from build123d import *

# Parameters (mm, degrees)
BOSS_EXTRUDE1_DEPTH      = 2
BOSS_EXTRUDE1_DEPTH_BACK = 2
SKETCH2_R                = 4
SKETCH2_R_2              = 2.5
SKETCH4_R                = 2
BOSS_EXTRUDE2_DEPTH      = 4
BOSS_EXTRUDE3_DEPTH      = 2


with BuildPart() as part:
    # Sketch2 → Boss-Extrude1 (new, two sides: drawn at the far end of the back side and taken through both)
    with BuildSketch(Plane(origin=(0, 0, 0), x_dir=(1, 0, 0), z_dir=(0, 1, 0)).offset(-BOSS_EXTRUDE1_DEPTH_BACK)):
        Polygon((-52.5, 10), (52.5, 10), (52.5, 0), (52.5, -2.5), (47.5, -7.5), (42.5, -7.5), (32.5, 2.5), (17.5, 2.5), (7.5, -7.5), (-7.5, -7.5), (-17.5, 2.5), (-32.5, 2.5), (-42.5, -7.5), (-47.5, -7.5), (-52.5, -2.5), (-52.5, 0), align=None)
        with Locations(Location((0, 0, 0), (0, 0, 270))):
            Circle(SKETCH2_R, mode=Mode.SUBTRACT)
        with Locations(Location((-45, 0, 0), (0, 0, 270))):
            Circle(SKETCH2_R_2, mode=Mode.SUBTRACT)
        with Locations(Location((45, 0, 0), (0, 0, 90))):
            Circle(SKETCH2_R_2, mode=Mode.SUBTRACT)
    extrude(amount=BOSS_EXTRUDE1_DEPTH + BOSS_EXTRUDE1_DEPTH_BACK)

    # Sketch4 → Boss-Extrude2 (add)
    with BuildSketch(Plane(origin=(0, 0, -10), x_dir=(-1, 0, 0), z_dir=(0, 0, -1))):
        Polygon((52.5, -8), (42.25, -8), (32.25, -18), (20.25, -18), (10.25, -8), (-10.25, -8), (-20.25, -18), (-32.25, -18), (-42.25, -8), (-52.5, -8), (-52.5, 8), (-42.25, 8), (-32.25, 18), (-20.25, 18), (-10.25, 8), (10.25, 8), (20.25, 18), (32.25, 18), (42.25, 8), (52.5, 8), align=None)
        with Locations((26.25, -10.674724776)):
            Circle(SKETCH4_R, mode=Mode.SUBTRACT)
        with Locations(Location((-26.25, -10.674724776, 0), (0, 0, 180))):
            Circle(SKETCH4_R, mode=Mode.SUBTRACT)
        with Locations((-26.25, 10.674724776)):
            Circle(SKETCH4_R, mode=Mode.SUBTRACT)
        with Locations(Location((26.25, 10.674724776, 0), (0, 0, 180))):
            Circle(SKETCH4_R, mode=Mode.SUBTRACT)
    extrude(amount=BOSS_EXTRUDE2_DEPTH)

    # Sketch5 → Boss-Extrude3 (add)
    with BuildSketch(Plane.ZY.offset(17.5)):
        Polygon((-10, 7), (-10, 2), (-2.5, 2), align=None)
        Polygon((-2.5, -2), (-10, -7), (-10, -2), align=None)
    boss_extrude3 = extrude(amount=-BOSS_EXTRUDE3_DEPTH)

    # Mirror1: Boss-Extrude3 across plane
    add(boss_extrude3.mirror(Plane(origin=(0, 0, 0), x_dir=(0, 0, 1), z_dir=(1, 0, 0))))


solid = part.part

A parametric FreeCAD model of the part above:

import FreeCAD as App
import Part
import Sketcher


def add_polygon(sketch, points):
    """Adds a closed chain of lines whose ends are joined by coincident constraints."""
    first, n = sketch.GeometryCount, len(points)
    for a, b in zip(points, points[1:] + points[:1]):
        sketch.addGeometry(Part.LineSegment(App.Vector(*a, 0), App.Vector(*b, 0)), False)
    for i in range(n):
        sketch.addConstraint(Sketcher.Constraint("Coincident", first + i, 2, first + (i + 1) % n, 1))

doc = App.newDocument("Part")
body = doc.addObject("PartDesign::Body", "Body")

sketch1 = body.newObject("Sketcher::SketchObject", "Sketch")
sketch1.AttachmentSupport = (doc.getObject("XZ_Plane"), [""])
sketch1.MapMode = "FlatFace"
add_polygon(sketch1, [(52.5, -10), (-52.5, -10), (-52.5, 2.5), (-47.5, 7.5), (-42.5, 7.5), (-32.5, -2.5), (-17.5, -2.5), (-7.5, 7.5), (7.5, 7.5), (17.5, -2.5), (32.5, -2.5), (42.5, 7.5), (47.5, 7.5), (52.5, 2.5)])
sketch1.addGeometry(Part.Circle(App.Vector(45, 0, 0), App.Vector(0, 0, 1), 2.5), False)
sketch1.addGeometry(Part.Circle(App.Vector(0, 0, 0), App.Vector(0, 0, 1), 4), False)
sketch1.addGeometry(Part.Circle(App.Vector(-45, 0, 0), App.Vector(0, 0, 1), 2.5), False)
sketch1.addConstraint([
    Sketcher.Constraint("Horizontal", 0),
    Sketcher.Constraint("Vertical", 1),
    Sketcher.Constraint("Horizontal", 3),
    Sketcher.Constraint("Horizontal", 5),
    Sketcher.Constraint("Horizontal", 7),
    Sketcher.Constraint("Horizontal", 9),
    Sketcher.Constraint("Horizontal", 11),
    Sketcher.Constraint("Vertical", 13),
    Sketcher.Constraint("Coincident", 15, 3, -1, 1),
    Sketcher.Constraint("Equal", 14, 16),
    Sketcher.Constraint("Symmetric", 14, 3, 16, 3, -1, 1),
    Sketcher.Constraint("Symmetric", 5, 2, 8, 2, -2),
    Sketcher.Constraint("Symmetric", 3, 2, 10, 2, -2),
    Sketcher.Constraint("Symmetric", 1, 2, 12, 2, -2),
    Sketcher.Constraint("PointOnObject", 14, 3, -1),
    Sketcher.Constraint("Perpendicular", 2, 4),
    Sketcher.Constraint("Perpendicular", 4, 6),
    Sketcher.Constraint("Perpendicular", 6, 8),
    Sketcher.Constraint("Perpendicular", 8, 10),
    Sketcher.Constraint("Perpendicular", 10, 12),
    Sketcher.Constraint("Horizontal", 3, 2, 6, 2),
    Sketcher.Constraint("Equal", 5, 7),
    Sketcher.Constraint("Equal", 7, 9),
    Sketcher.Constraint("Diameter", 14, 5.0),
    Sketcher.Constraint("Diameter", 15, 8.0),
    Sketcher.Constraint("DistanceX", 0, 2, 0, 1, 105.0),
    Sketcher.Constraint("DistanceX", 3, 1, 3, 2, 5.0),
    Sketcher.Constraint("DistanceX", 5, 1, 5, 2, 15.0),
    Sketcher.Constraint("DistanceY", 1, 1, 1, 2, 12.5),
    Sketcher.Constraint("DistanceX", -1, 1, 14, 3, 45.0),
    Sketcher.Constraint("DistanceY", 0, 2, -1, 1, 10.0),
    Sketcher.Constraint("DistanceX", 1, 2, 2, 2, 5.0),
])
pad1 = body.newObject("PartDesign::Pad", "Pad")
pad1.Profile = sketch1
pad1.Type = "TwoLengths"
pad1.Length = 2
pad1.Length2 = 2
pad1.Reversed = True

sketch2 = body.newObject("Sketcher::SketchObject", "Sketch001")
sketch2.AttachmentSupport = (doc.getObject("XY_Plane"), [""])
sketch2.MapMode = "FlatFace"
sketch2.AttachmentOffset = App.Placement(App.Vector(0, 0, -10), App.Rotation())
add_polygon(sketch2, [(-42.25, -8), (-52.5, -8), (-52.5, 8), (-42.25, 8), (-32.25, 18), (-20.25, 18), (-10.25, 8), (10.25, 8), (20.25, 18), (32.25, 18), (42.25, 8), (52.5, 8), (52.5, -8), (42.25, -8), (32.25, -18), (20.25, -18), (10.25, -8), (-10.25, -8), (-20.25, -18), (-32.25, -18)])
sketch2.addGeometry(Part.Circle(App.Vector(-26.25, -10.674725, 0), App.Vector(0, 0, 1), 2), False)
sketch2.addGeometry(Part.Circle(App.Vector(26.25, -10.674725, 0), App.Vector(0, 0, 1), 2), False)
sketch2.addGeometry(Part.Circle(App.Vector(-26.25, 10.674725, 0), App.Vector(0, 0, 1), 2), False)
sketch2.addGeometry(Part.Circle(App.Vector(26.25, 10.674725, 0), App.Vector(0, 0, 1), 2), False)
sketch2.addConstraint([
    Sketcher.Constraint("Horizontal", 0),
    Sketcher.Constraint("Vertical", 1),
    Sketcher.Constraint("Horizontal", 2),
    Sketcher.Constraint("Horizontal", 4),
    Sketcher.Constraint("Horizontal", 6),
    Sketcher.Constraint("Horizontal", 8),
    Sketcher.Constraint("Horizontal", 10),
    Sketcher.Constraint("Vertical", 11),
    Sketcher.Constraint("Horizontal", 12),
    Sketcher.Constraint("Horizontal", 14),
    Sketcher.Constraint("Horizontal", 16),
    Sketcher.Constraint("Horizontal", 18),
    Sketcher.Constraint("Equal", 20, 21),
    Sketcher.Constraint("Equal", 21, 22),
    Sketcher.Constraint("Equal", 22, 23),
    Sketcher.Constraint("Symmetric", 21, 3, 22, 3, -1, 1),
    Sketcher.Constraint("Symmetric", 20, 3, 23, 3, -1, 1),
    Sketcher.Constraint("Symmetric", 0, 2, 10, 2, -1, 1),
    Sketcher.Constraint("Symmetric", 2, 2, 12, 2, -1, 1),
    Sketcher.Constraint("Symmetric", 3, 2, 13, 2, -1, 1),
    Sketcher.Constraint("Symmetric", 5, 2, 15, 2, -1, 1),
    Sketcher.Constraint("Symmetric", 7, 2, 17, 2, -1, 1),
    Sketcher.Constraint("Symmetric", 20, 3, 21, 3, -2),
    Sketcher.Constraint("Symmetric", 4, 2, 7, 2, -2),
    Sketcher.Constraint("Symmetric", 2, 2, 9, 2, -2),
    Sketcher.Constraint("Perpendicular", 3, 5),
    Sketcher.Constraint("Perpendicular", 5, 7),
    Sketcher.Constraint("Perpendicular", 7, 9),
    Sketcher.Constraint("Perpendicular", 13, 15),
    Sketcher.Constraint("Perpendicular", 15, 17),
    Sketcher.Constraint("Perpendicular", 17, 19),
    Sketcher.Constraint("Horizontal", 2, 2, 5, 2),
    Sketcher.Constraint("Vertical", 8, 2, 13, 2),
    Sketcher.Constraint("Vertical", 3, 2, 18, 2),
    Sketcher.Constraint("Diameter", 20, 4.0),
    Sketcher.Constraint("DistanceX", 4, 1, 4, 2, 12.0),
    Sketcher.Constraint("DistanceY", 1, 1, 1, 2, 16.0),
    Sketcher.Constraint("DistanceX", 6, 1, 6, 2, 20.5),
    Sketcher.Constraint("DistanceY", -1, 1, 3, 2, 18.0),
    Sketcher.Constraint("DistanceX", 2, 2, 22, 3, 16.0),
    Sketcher.Constraint("DistanceX", 0, 2, 0, 1, 10.25),
    Sketcher.Constraint("DistanceY", 20, 3, 22, 3, 21.34945),
])
pad2 = body.newObject("PartDesign::Pad", "Pad001")
pad2.Profile = sketch2
pad2.Length = 4
pad2.Reversed = True

sketch3 = body.newObject("Sketcher::SketchObject", "Sketch002")
sketch3.AttachmentSupport = (doc.getObject("YZ_Plane"), [""])
sketch3.MapMode = "FlatFace"
sketch3.AttachmentOffset = App.Placement(App.Vector(0, 0, -17.5), App.Rotation())
add_polygon(sketch3, [(7, -10), (2, -10), (2, -2.5)])
add_polygon(sketch3, [(-7, -10), (-2, -2.5), (-2, -10)])
sketch3.addConstraint([
    Sketcher.Constraint("Horizontal", 0),
    Sketcher.Constraint("Vertical", 1),
    Sketcher.Constraint("Vertical", 4),
    Sketcher.Constraint("Horizontal", 5),
    Sketcher.Constraint("Symmetric", 1, 2, 3, 2, -2),
    Sketcher.Constraint("Symmetric", 2, 2, 5, 2, -2),
    Sketcher.Constraint("DistanceX", 0, 2, 0, 1, 5.0),
    Sketcher.Constraint("DistanceY", 1, 1, 1, 2, 7.5),
    Sketcher.Constraint("DistanceX", -1, 1, 0, 2, 2.0),
    Sketcher.Constraint("DistanceY", 0, 2, -1, 1, 10.0),
])
pad3 = body.newObject("PartDesign::Pad", "Pad002")
pad3.Profile = sketch3
pad3.Length = 2
doc.recompute()

mirrored = body.newObject("PartDesign::Mirrored", "Mirrored")
mirrored.Originals = [pad3]
mirrored.MirrorPlane = (doc.getObject("YZ_Plane"), [""])
body.Tip = mirrored

doc.recompute()
